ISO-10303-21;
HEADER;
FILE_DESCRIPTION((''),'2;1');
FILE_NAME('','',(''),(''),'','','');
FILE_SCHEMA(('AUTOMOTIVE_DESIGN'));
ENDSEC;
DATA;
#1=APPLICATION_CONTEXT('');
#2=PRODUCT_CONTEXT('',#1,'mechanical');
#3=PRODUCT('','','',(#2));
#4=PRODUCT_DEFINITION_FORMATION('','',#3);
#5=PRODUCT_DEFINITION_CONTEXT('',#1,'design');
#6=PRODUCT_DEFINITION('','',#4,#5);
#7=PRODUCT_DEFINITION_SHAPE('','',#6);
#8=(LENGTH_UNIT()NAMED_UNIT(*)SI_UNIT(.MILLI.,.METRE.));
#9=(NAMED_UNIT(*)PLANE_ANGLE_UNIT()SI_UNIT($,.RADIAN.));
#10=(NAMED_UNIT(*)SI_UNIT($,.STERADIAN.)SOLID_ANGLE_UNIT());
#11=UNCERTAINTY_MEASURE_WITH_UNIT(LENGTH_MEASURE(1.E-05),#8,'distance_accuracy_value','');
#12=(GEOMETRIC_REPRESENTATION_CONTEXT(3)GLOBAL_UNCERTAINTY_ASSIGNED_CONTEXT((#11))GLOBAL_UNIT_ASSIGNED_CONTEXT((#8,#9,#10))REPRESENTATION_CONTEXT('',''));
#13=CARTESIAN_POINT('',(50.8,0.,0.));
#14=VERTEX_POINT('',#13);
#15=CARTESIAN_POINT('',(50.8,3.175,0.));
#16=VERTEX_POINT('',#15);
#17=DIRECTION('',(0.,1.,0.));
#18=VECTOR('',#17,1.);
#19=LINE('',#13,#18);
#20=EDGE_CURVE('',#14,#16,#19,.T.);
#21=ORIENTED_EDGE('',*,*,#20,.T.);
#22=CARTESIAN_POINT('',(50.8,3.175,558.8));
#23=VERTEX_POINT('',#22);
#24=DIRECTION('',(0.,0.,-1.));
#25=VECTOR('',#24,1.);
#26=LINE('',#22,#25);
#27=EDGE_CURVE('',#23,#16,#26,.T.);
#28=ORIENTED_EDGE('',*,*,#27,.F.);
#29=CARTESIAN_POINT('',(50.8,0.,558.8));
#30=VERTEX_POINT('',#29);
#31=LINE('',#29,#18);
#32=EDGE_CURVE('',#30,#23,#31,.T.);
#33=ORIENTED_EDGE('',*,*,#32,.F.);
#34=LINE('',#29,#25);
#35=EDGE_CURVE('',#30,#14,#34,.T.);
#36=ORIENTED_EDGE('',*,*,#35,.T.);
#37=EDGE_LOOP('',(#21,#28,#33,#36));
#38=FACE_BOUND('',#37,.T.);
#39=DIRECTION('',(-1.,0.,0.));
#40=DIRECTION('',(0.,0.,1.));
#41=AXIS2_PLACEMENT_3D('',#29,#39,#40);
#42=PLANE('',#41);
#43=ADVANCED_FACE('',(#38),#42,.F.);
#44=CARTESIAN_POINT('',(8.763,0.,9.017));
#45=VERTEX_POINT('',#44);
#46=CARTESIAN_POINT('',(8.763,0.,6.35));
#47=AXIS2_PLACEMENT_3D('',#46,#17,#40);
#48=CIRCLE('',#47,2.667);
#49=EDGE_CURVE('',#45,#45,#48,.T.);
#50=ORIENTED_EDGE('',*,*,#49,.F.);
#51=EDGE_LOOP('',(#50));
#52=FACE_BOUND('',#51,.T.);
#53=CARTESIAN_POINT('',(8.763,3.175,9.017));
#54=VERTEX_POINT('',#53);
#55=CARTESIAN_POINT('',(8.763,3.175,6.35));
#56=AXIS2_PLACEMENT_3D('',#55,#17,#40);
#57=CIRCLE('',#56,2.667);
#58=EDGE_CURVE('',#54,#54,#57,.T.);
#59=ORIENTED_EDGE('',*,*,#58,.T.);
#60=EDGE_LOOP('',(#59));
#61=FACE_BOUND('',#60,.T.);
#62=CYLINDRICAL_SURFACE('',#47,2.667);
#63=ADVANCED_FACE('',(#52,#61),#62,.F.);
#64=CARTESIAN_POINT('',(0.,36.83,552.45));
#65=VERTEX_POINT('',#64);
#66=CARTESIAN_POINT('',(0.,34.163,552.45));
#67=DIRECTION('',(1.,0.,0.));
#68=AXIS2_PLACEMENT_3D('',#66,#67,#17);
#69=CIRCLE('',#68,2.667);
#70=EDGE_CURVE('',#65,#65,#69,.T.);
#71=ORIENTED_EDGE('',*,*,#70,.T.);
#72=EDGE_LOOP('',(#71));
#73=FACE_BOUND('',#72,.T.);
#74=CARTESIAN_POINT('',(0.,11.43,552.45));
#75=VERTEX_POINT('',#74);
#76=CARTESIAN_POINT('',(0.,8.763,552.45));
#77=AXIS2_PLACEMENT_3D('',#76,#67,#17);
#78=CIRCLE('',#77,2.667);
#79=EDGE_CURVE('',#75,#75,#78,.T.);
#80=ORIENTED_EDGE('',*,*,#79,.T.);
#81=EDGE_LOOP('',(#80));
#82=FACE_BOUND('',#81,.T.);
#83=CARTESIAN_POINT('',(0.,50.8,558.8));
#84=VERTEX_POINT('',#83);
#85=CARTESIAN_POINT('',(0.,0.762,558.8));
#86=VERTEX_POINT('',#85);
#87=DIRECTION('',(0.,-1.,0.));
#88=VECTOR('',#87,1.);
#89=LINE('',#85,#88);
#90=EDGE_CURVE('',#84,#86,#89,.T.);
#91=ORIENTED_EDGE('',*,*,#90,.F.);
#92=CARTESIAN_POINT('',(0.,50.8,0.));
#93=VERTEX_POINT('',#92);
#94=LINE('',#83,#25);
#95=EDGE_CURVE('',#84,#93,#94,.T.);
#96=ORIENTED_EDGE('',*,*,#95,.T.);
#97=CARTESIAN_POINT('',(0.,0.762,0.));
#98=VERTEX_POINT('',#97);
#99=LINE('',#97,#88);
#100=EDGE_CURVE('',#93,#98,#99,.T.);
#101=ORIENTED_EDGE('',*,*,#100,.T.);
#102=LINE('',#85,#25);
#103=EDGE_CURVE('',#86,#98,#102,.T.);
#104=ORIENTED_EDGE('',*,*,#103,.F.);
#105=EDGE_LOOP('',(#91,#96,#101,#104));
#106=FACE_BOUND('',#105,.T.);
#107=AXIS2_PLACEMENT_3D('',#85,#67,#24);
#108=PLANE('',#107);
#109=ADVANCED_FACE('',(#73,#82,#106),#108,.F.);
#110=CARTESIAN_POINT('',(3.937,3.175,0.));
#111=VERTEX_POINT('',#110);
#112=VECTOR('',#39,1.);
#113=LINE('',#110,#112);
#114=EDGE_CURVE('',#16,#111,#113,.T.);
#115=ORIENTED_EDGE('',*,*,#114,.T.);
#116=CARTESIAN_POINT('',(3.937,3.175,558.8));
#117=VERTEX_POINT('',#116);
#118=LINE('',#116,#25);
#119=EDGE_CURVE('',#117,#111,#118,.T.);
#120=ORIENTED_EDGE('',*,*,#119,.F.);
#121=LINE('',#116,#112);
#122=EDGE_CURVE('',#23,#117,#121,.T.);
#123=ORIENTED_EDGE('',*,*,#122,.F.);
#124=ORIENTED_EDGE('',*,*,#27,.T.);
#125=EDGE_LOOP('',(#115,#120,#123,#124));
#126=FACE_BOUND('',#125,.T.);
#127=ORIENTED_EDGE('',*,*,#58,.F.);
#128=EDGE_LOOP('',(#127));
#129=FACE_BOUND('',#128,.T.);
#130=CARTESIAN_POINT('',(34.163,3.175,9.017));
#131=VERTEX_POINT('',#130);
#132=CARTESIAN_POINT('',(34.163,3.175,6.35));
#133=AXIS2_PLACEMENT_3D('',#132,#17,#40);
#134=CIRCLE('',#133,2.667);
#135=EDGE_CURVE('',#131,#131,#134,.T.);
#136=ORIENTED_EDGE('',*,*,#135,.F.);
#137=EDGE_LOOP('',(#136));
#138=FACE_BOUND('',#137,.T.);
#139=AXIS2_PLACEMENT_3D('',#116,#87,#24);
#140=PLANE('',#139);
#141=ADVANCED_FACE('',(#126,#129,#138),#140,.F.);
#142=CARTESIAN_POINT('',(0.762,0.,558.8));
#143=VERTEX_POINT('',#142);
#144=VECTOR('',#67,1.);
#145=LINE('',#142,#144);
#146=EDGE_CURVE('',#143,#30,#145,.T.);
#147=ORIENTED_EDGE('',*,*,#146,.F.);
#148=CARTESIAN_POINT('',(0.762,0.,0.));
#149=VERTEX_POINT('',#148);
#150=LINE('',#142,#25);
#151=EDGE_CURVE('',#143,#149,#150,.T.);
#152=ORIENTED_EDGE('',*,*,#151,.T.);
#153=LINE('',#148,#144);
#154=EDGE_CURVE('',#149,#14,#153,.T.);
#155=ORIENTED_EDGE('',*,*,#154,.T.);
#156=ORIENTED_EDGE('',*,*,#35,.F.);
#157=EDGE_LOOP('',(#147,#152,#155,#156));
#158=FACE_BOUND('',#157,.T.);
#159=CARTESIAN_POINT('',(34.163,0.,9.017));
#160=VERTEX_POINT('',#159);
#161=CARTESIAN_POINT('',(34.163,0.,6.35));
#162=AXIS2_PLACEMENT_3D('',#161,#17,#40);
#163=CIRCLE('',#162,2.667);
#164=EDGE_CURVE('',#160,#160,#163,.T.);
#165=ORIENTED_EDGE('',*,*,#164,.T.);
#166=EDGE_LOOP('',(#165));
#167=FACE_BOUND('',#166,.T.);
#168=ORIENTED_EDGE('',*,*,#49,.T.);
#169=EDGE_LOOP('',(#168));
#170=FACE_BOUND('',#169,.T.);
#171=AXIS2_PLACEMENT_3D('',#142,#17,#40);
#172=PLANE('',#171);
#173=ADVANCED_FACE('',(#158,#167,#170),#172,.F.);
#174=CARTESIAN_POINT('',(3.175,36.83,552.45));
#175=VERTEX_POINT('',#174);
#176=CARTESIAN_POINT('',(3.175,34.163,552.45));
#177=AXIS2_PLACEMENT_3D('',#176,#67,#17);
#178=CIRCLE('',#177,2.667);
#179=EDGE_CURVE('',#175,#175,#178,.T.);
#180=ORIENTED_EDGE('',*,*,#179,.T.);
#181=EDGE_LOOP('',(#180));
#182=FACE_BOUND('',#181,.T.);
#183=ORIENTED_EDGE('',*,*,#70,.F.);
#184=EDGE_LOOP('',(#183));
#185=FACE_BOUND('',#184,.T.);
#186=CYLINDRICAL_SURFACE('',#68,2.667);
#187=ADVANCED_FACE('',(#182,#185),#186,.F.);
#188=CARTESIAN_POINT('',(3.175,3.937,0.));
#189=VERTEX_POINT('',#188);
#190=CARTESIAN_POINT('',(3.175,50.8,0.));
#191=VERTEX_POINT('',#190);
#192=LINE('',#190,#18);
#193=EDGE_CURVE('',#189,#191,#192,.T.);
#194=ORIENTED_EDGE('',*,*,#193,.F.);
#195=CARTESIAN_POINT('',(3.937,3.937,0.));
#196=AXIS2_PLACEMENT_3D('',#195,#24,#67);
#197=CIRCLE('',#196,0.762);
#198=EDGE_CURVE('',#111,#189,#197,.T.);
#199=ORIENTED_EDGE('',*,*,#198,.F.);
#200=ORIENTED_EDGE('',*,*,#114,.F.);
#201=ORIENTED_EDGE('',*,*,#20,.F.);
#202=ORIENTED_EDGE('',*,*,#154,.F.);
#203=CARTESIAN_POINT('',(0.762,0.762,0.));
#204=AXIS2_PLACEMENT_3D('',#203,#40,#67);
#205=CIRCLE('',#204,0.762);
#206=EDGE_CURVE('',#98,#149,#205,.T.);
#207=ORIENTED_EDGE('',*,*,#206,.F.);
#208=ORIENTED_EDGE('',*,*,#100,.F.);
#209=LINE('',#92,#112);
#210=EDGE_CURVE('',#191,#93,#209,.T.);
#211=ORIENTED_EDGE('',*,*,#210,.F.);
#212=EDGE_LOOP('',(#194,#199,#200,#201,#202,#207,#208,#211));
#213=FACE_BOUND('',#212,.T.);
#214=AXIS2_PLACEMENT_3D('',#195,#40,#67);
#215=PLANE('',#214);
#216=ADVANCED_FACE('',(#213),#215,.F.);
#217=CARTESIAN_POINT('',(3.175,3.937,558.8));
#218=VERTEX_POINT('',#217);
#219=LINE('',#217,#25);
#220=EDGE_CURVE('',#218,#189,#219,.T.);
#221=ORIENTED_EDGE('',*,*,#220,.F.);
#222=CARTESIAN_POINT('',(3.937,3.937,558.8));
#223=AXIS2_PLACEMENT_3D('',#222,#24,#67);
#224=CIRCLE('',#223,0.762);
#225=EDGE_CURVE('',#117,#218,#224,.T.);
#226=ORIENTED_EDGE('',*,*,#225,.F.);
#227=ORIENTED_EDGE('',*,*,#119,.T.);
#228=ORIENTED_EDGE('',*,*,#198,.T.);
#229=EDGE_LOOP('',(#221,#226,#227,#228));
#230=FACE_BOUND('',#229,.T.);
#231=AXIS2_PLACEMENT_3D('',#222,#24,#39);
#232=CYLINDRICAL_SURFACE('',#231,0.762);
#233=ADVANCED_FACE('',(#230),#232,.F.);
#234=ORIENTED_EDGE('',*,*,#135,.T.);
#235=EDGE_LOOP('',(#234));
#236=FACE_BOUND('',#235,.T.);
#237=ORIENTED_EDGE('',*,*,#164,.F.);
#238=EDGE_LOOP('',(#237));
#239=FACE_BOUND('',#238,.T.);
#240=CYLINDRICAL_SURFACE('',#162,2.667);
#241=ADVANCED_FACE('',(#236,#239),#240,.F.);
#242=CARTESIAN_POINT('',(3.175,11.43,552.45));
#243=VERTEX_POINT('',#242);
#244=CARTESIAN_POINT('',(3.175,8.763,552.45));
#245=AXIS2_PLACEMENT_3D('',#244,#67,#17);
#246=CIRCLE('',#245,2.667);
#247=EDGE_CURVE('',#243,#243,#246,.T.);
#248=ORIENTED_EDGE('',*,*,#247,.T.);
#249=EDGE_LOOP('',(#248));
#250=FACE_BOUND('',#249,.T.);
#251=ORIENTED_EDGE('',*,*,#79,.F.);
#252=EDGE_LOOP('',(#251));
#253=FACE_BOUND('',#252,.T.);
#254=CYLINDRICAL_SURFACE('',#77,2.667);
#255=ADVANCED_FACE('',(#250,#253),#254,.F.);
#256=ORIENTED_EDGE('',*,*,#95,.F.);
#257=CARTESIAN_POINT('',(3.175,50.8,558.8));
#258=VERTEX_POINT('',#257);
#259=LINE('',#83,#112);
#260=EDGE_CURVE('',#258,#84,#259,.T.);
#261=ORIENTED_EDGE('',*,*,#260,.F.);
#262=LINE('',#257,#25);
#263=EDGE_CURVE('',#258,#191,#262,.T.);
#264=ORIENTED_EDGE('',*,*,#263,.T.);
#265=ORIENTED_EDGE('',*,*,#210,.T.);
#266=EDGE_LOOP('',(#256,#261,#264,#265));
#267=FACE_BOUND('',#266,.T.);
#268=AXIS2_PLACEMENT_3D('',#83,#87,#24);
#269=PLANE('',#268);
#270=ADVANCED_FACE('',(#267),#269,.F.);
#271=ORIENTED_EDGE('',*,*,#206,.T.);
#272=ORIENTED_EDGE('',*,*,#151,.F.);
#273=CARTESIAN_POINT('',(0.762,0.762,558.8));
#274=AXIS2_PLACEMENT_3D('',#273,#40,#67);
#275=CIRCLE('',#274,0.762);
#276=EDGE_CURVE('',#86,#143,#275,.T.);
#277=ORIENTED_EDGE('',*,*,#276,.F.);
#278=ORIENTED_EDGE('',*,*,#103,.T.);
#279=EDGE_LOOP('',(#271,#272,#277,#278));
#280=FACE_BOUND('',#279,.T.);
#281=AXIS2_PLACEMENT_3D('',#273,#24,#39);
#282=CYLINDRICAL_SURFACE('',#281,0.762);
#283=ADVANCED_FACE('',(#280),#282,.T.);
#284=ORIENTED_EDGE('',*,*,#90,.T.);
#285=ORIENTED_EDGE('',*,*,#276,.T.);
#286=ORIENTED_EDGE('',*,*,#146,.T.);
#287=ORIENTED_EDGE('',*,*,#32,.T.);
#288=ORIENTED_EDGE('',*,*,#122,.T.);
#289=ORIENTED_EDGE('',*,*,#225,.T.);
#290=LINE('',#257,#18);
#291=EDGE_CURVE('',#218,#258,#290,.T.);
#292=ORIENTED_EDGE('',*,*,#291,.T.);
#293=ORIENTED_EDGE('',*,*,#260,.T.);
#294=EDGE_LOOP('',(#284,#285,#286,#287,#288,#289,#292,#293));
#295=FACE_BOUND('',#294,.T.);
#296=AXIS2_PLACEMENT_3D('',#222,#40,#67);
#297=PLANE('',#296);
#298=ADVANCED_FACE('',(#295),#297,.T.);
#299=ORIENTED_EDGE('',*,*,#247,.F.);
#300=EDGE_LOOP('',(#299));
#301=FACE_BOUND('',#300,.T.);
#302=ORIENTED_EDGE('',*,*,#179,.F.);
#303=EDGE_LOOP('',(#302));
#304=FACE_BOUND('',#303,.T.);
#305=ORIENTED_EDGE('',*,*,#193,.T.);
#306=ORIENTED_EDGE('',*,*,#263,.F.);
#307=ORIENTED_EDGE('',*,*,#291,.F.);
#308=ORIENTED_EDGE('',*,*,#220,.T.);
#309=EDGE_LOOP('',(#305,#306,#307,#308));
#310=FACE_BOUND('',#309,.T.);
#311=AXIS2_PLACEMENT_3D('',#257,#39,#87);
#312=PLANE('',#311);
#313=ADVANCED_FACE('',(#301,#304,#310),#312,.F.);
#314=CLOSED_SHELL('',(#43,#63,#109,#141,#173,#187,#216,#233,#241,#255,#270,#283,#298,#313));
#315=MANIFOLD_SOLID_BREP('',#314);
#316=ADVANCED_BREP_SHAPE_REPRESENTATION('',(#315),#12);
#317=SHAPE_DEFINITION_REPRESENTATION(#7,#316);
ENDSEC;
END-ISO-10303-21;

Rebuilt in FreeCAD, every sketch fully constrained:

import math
import FreeCAD as App
import Part
import Sketcher
from FreeCAD import Vector
Q = App.Units.Quantity

doc = App.newDocument("Part")
params = doc.addObject("Spreadsheet::Sheet", "Params")
for row, (alias, value) in enumerate([
    ("sketch1_radius", "0.03 in"),
    ("sketch1_width", "0.125 in"),
    ("pad1_length", "22 in"),
    ("sketch2_diameter", "0.21 in"),
    ("sketch3_diameter", "0.21 in"),
], start=1):
    params.set(f"A{row}", alias)
    params.set(f"B{row}", "=" + value)
    params.setAlias(f"B{row}", alias)

body = doc.addObject("PartDesign::Body", "Body")

# Sketch on XY plane
sketch1 = doc.addObject("Sketcher::SketchObject", "Sketch")
body.addObject(sketch1)
sketch1.AttachmentSupport = (doc.XY_Plane, [""])
sketch1.MapMode = "FlatFace"
sketch1.addGeometry(Part.LineSegment(Vector(3.2, 3.9, 0), Vector(3.2, 50.8, 0)), False)
sketch1.addGeometry(Part.LineSegment(Vector(3.2, 50.8, 0), Vector(0, 50.8, 0)), False)
sketch1.addGeometry(Part.LineSegment(Vector(0, 50.8, 0), Vector(0, 0.8, 0)), False)
sketch1.addGeometry(Part.ArcOfCircle(Part.Circle(Vector(0.8, 0.8, 0), Vector(0, 0, 1), 0.8), math.radians(-180), math.radians(-90)), False)
sketch1.addGeometry(Part.LineSegment(Vector(0.8, 0, 0), Vector(50.8, 0, 0)), False)
sketch1.addGeometry(Part.LineSegment(Vector(50.8, 0, 0), Vector(50.8, 3.2, 0)), False)
sketch1.addGeometry(Part.LineSegment(Vector(50.8, 3.2, 0), Vector(3.9, 3.2, 0)), False)
sketch1.addGeometry(Part.ArcOfCircle(Part.Circle(Vector(3.9, 3.9, 0), Vector(0, 0, 1), 0.8), math.radians(-180), math.radians(-90)), False)
sketch1.addConstraint(Sketcher.Constraint("Coincident", 0, 2, 1, 1))
sketch1.addConstraint(Sketcher.Constraint("Coincident", 1, 2, 2, 1))
sketch1.addConstraint(Sketcher.Constraint("Tangent", 2, 2, 3, 1))
sketch1.addConstraint(Sketcher.Constraint("Tangent", 3, 2, 4, 1))
sketch1.addConstraint(Sketcher.Constraint("Coincident", 4, 2, 5, 1))
sketch1.addConstraint(Sketcher.Constraint("Coincident", 5, 2, 6, 1))
sketch1.addConstraint(Sketcher.Constraint("Tangent", 6, 2, 7, 2))
sketch1.addConstraint(Sketcher.Constraint("Tangent", 7, 1, 0, 1))
sketch1.addConstraint(Sketcher.Constraint("Vertical", 0))
sketch1.addConstraint(Sketcher.Constraint("Horizontal", 1))
sketch1.addConstraint(Sketcher.Constraint("Vertical", 2))
sketch1.addConstraint(Sketcher.Constraint("Horizontal", 4))
sketch1.addConstraint(Sketcher.Constraint("Vertical", 5))
sketch1.addConstraint(Sketcher.Constraint("Horizontal", 6))
sketch1.addConstraint(Sketcher.Constraint("Equal", 3, 7))
sketch1.addConstraint(Sketcher.Constraint("PointOnObject", 1, 2, -2))
sketch1.addConstraint(Sketcher.Constraint("PointOnObject", 3, 2, -1))
sketch1.addConstraint(Sketcher.Constraint("Equal", 6, 0))
sketch1.addConstraint(Sketcher.Constraint("Equal", 4, 2))
sketch1.addConstraint(Sketcher.Constraint("Radius", 3, Q("0.03 in")))
sketch1.addConstraint(Sketcher.Constraint("DistanceY", -1, 1, 0, 2, Q("2 in")))
sketch1.addConstraint(Sketcher.Constraint("DistanceX", 1, 2, 1, 1, Q("0.125 in")))
sketch1.setExpression("Constraints[19]", "Params.sketch1_radius")
sketch1.setExpression("Constraints[21]", "Params.sketch1_width")
pad1 = doc.addObject("PartDesign::Pad", "Pad")
body.addObject(pad1)
pad1.Profile = sketch1
pad1.setExpression("Length", "Params.pad1_length")

# Sketch on XZ plane
sketch2 = doc.addObject("Sketcher::SketchObject", "Sketch001")
body.addObject(sketch2)
sketch2.AttachmentSupport = (doc.XZ_Plane, [""])
sketch2.MapMode = "FlatFace"
sketch2.AttachmentOffset = App.Placement(Vector(0, 0, -0.125 * 25.4), App.Rotation())
sketch2.addGeometry(Part.Circle(Vector(34.2, 6.3, 0), Vector(0, 0, 1), 2.7), False)
sketch2.addGeometry(Part.Circle(Vector(8.8, 6.3, 0), Vector(0, 0, 1), 2.7), False)
sketch2.addConstraint(Sketcher.Constraint("Equal", 0, 1))
sketch2.addConstraint(Sketcher.Constraint("Horizontal", 0, 3, 1, 3))
sketch2.addConstraint(Sketcher.Constraint("Diameter", 0, Q("0.21 in")))
sketch2.addConstraint(Sketcher.Constraint("DistanceX", 1, 3, 0, 3, Q("1 in")))
sketch2.addConstraint(Sketcher.Constraint("DistanceY", -1, 1, 0, 3, Q("0.25 in")))
sketch2.addConstraint(Sketcher.Constraint("DistanceX", -1, 1, 0, 3, Q("1.345 in")))
sketch2.setExpression("Constraints[2]", "Params.sketch2_diameter")
pocket1 = doc.addObject("PartDesign::Pocket", "Pocket")
body.addObject(pocket1)
pocket1.Profile = sketch2
pocket1.Type = "ThroughAll"
pocket1.Reversed = True

# Sketch on YZ plane
sketch3 = doc.addObject("Sketcher::SketchObject", "Sketch002")
body.addObject(sketch3)
sketch3.AttachmentSupport = (doc.YZ_Plane, [""])
sketch3.MapMode = "FlatFace"
sketch3.AttachmentOffset = App.Placement(Vector(0, 0, 0.125 * 25.4), App.Rotation())
sketch3.addGeometry(Part.Circle(Vector(34.2, 552.5, 0), Vector(0, 0, 1), 2.7), False)
sketch3.addGeometry(Part.Circle(Vector(8.8, 552.5, 0), Vector(0, 0, 1), 2.7), False)
sketch3.addConstraint(Sketcher.Constraint("Equal", 0, 1))
sketch3.addConstraint(Sketcher.Constraint("Horizontal", 0, 3, 1, 3))
sketch3.addConstraint(Sketcher.Constraint("Diameter", 0, Q("0.21 in")))
sketch3.addConstraint(Sketcher.Constraint("DistanceX", 1, 3, 0, 3, Q("1 in")))
sketch3.addConstraint(Sketcher.Constraint("DistanceY", -1, 1, 0, 3, Q("21.75 in")))
sketch3.addConstraint(Sketcher.Constraint("DistanceX", -1, 1, 0, 3, Q("1.345 in")))
sketch3.setExpression("Constraints[2]", "Params.sketch3_diameter")
pocket2 = doc.addObject("PartDesign::Pocket", "Pocket001")
body.addObject(pocket2)
pocket2.Profile = sketch3
pocket2.Type = "ThroughAll"

doc.recompute()
